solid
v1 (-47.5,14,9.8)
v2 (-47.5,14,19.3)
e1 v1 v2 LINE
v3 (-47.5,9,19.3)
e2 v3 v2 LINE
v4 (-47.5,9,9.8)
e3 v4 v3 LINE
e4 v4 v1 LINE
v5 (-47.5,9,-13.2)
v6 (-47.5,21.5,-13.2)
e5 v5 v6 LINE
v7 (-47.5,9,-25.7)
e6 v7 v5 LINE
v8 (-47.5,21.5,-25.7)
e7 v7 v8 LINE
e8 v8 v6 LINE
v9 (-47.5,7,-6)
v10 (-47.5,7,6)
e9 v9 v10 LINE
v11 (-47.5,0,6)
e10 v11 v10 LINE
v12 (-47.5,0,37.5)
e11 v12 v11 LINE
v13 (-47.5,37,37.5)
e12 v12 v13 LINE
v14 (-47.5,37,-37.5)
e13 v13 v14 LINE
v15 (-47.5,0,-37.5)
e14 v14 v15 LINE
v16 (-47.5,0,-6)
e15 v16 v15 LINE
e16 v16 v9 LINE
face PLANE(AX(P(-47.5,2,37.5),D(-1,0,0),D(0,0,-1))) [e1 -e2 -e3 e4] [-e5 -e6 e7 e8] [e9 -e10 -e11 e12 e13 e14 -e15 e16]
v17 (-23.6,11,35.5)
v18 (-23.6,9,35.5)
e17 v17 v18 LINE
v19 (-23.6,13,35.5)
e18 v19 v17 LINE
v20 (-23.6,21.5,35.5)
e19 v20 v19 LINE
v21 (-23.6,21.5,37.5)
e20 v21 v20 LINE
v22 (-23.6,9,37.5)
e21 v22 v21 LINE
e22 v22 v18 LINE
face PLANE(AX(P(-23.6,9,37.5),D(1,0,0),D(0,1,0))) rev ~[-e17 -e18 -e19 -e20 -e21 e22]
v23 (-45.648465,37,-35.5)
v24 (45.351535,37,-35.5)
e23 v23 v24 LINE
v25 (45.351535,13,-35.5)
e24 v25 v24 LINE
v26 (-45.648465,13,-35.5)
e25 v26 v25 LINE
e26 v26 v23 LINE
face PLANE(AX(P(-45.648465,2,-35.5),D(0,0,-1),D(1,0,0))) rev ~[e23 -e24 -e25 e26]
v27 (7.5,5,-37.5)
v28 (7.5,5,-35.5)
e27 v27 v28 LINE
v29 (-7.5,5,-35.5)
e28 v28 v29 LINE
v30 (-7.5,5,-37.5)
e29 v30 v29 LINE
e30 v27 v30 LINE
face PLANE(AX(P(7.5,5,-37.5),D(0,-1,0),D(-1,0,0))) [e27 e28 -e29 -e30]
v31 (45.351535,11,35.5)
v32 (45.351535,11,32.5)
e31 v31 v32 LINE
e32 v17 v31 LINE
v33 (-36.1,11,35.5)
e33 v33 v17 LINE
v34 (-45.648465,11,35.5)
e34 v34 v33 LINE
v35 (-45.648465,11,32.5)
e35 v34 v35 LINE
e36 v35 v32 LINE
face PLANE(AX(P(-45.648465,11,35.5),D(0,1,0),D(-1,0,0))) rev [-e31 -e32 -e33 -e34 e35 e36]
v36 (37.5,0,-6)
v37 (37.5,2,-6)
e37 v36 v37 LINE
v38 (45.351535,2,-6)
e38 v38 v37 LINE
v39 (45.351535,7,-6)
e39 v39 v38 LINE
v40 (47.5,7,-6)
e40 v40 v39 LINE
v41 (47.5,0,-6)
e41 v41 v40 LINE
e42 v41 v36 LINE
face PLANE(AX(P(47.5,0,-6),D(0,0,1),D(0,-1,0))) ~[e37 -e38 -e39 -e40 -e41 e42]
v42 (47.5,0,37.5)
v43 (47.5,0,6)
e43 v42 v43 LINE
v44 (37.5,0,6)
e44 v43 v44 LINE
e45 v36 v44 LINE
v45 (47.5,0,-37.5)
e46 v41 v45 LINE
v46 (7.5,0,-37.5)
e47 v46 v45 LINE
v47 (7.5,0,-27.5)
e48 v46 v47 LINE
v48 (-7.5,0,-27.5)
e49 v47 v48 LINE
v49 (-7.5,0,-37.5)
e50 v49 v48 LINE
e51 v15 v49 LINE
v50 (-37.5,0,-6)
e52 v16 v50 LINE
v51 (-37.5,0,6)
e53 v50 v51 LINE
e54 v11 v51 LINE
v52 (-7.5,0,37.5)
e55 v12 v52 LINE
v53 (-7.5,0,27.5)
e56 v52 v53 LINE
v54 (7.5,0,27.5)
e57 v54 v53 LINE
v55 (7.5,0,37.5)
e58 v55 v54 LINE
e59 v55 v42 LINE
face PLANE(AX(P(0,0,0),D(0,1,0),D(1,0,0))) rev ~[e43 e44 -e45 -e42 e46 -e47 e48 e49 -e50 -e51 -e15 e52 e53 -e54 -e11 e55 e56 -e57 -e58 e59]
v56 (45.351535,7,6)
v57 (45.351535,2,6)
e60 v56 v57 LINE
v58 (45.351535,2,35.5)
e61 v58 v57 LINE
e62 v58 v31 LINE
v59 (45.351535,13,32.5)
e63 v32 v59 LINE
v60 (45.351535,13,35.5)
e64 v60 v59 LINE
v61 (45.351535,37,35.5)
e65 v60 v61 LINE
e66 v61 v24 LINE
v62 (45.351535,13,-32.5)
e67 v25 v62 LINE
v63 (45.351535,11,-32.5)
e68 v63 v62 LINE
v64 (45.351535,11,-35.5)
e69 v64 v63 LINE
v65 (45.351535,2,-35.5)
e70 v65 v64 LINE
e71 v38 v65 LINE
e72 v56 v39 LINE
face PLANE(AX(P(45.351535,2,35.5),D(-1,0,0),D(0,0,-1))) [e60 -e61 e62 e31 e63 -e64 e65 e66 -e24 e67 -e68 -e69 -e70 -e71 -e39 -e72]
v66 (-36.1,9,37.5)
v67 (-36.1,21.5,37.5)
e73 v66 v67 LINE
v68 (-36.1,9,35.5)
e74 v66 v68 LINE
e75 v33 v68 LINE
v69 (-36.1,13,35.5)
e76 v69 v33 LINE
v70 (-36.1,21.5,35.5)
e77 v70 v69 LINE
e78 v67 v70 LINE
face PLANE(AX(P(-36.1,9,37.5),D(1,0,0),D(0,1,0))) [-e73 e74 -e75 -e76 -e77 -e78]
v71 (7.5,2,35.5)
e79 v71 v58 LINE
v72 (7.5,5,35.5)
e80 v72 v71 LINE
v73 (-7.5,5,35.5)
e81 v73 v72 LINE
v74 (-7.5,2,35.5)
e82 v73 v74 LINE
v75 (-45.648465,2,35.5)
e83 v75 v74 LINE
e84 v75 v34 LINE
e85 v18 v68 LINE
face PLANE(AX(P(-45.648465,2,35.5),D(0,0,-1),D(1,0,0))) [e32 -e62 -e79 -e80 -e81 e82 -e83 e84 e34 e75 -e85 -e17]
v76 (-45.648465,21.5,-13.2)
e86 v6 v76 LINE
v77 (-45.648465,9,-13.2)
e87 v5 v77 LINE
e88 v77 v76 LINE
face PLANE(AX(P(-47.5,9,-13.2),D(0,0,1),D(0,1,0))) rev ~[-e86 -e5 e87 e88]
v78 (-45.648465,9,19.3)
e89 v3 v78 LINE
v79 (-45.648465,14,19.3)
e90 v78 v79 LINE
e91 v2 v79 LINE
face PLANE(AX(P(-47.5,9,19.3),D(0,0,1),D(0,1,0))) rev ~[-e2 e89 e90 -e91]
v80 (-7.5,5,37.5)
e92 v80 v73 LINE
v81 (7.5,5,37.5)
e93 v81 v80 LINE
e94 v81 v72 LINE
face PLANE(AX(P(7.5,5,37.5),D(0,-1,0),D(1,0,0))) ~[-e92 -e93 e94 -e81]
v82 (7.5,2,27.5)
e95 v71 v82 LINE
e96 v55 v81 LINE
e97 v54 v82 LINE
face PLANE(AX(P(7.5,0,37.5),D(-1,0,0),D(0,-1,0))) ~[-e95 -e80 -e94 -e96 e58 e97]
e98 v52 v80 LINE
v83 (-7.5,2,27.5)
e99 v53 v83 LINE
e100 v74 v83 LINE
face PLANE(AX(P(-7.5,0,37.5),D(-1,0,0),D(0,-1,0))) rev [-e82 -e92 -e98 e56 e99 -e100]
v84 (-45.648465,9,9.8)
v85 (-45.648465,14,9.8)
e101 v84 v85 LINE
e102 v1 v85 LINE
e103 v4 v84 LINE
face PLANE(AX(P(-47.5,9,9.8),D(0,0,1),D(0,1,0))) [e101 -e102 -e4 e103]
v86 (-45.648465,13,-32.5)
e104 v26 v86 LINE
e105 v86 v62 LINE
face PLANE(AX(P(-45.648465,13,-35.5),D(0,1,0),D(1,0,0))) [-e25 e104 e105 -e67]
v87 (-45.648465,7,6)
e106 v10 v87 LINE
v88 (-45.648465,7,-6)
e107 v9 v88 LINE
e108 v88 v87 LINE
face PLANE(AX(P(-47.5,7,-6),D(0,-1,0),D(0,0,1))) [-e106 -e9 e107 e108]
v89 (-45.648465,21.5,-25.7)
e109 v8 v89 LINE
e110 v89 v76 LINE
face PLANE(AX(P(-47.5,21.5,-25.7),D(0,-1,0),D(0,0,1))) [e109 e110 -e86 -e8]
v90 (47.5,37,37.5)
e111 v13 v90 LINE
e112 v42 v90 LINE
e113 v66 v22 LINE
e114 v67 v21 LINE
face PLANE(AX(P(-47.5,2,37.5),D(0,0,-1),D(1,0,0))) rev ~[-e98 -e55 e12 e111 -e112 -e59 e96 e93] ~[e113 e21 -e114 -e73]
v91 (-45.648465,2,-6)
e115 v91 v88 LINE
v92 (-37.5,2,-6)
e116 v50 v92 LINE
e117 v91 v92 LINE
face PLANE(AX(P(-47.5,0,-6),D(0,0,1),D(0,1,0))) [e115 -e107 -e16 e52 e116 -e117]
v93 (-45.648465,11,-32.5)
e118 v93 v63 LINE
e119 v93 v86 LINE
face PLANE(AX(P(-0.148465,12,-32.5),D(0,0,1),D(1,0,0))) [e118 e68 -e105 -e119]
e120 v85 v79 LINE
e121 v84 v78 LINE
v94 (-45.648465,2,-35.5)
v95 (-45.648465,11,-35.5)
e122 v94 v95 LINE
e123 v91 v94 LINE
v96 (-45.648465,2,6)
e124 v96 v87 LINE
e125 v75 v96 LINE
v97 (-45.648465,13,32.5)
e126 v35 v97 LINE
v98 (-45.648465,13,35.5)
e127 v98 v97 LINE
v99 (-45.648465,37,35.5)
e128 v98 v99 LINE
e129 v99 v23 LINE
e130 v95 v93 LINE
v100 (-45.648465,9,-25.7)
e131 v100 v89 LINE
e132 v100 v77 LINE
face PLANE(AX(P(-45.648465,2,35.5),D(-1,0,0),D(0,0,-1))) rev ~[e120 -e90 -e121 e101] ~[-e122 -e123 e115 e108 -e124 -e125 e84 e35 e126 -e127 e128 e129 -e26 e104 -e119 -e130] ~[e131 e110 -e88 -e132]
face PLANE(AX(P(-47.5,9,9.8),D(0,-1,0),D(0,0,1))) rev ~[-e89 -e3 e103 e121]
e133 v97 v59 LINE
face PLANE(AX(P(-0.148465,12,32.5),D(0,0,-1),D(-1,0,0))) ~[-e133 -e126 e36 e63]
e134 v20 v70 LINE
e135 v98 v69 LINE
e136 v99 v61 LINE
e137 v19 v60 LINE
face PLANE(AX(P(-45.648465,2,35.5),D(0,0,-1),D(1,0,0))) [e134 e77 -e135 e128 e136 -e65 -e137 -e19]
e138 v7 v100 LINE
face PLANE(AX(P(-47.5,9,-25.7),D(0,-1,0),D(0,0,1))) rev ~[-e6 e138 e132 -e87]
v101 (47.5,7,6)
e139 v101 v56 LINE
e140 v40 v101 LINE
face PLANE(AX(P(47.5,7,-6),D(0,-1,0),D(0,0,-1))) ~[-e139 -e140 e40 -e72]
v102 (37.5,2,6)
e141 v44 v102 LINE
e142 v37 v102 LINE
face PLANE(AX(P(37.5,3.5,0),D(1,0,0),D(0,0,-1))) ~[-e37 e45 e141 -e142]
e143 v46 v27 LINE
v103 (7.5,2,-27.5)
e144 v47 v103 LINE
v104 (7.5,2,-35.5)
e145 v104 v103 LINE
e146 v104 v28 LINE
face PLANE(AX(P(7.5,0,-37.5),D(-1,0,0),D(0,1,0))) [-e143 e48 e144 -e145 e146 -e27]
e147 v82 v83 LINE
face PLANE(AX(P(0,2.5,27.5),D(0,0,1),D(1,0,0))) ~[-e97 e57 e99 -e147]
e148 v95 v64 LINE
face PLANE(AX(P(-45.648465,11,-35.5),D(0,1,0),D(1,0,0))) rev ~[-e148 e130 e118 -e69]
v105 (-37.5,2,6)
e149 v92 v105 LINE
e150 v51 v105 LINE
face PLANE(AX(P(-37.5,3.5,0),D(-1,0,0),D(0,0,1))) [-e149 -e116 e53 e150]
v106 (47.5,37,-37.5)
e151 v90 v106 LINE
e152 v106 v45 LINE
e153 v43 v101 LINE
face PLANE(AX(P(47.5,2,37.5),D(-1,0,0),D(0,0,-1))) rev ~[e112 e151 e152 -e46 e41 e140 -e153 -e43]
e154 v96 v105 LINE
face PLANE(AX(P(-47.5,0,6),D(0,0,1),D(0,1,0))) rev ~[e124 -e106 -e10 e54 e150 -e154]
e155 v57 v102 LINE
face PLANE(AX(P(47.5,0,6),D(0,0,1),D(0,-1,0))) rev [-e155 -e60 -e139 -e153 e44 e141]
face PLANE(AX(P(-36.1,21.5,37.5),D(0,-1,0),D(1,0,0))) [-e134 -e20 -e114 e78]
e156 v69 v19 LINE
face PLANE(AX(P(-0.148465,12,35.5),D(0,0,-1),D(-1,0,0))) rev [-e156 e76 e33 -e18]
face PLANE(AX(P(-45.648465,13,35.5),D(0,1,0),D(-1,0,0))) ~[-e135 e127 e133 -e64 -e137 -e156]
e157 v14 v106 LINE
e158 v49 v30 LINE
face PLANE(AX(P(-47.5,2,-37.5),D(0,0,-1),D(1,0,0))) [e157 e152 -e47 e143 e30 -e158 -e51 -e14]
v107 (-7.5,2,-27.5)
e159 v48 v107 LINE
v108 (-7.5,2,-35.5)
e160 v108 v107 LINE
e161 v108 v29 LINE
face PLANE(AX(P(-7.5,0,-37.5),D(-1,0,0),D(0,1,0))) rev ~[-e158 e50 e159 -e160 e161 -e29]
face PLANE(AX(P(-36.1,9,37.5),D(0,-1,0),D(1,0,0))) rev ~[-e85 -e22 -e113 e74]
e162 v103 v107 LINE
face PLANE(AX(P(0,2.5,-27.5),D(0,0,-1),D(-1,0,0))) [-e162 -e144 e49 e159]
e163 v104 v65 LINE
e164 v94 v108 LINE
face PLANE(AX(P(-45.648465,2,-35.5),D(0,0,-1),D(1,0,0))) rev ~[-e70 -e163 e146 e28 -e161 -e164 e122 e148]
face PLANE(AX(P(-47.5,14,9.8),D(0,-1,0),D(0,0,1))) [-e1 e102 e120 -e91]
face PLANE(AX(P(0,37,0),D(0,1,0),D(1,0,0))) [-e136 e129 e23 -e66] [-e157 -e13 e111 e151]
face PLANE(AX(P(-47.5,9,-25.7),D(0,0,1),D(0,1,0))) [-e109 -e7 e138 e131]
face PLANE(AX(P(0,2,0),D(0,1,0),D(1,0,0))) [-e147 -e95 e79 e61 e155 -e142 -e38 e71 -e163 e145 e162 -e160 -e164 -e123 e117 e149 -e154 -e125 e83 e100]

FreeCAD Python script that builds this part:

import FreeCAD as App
import Part
import Sketcher

V = App.Vector


def add_polygon(sketch, points):
    """Adds a closed chain of lines whose ends are joined by coincident constraints."""
    first, n = sketch.GeometryCount, len(points)
    for a, b in zip(points, points[1:] + points[:1]):
        sketch.addGeometry(Part.LineSegment(App.Vector(*a, 0), App.Vector(*b, 0)), False)
    for i in range(n):
        sketch.addConstraint(Sketcher.Constraint("Coincident", first + i, 2, first + (i + 1) % n, 1))

doc = App.newDocument("Part")
body = doc.addObject("PartDesign::Body", "Body")

sketch1 = body.newObject("Sketcher::SketchObject", "Sketch")
sketch1.AttachmentSupport = (doc.getObject("XZ_Plane"), [""])
sketch1.MapMode = "FlatFace"
add_polygon(sketch1, [(-48, -38), (-48, 38), (48, 38), (48, -38)])
sketch1.addConstraint([
    Sketcher.Constraint("Vertical", 0),
    Sketcher.Constraint("Horizontal", 1),
    Sketcher.Constraint("Vertical", 2),
    Sketcher.Constraint("Horizontal", 3),
    Sketcher.Constraint("Symmetric", 0, 2, 2, 2, -1, 1),
    Sketcher.Constraint("DistanceX", 1, 1, 1, 2, 95.0),
    Sketcher.Constraint("DistanceY", 0, 1, 0, 2, 75.0),
])
pad1 = body.newObject("PartDesign::Pad", "Pad")
pad1.Profile = sketch1
pad1.Length = 2
pad1.Reversed = True

sketch2 = body.newObject("Sketcher::SketchObject", "Sketch001")
sketch2.AttachmentSupport = (doc.getObject("XZ_Plane"), [""])
sketch2.MapMode = "FlatFace"
sketch2.AttachmentOffset = App.Placement(V(0, 0, -2), App.Rotation())
add_polygon(sketch2, [(-48, -38), (-48, 38), (48, 38), (48, -38)])
add_polygon(sketch2, [(45, 36), (-46, 36), (-46, -36), (45, -36)])
sketch2.addConstraint([
    Sketcher.Constraint("Vertical", 0),
    Sketcher.Constraint("Horizontal", 1),
    Sketcher.Constraint("Vertical", 2),
    Sketcher.Constraint("Horizontal", 3),
    Sketcher.Constraint("Horizontal", 4),
    Sketcher.Constraint("Vertical", 5),
    Sketcher.Constraint("Horizontal", 6),
    Sketcher.Constraint("Vertical", 7),
    Sketcher.Constraint("Symmetric", 0, 2, 2, 2, -1, 1),
    Sketcher.Constraint("DistanceX", 1, 1, 1, 2, 95.0),
    Sketcher.Constraint("DistanceX", 4, 2, 4, 1, 91.0),
    Sketcher.Constraint("DistanceY", 0, 1, 0, 2, 75.0),
    Sketcher.Constraint("DistanceY", 5, 2, 5, 1, 71.0),
    Sketcher.Constraint("DistanceY", 4, 2, 0, 2, 2.0),
    Sketcher.Constraint("DistanceX", 4, 2, -1, 1, 45.648465),
])
pad2 = body.newObject("PartDesign::Pad", "Pad001")
pad2.Profile = sketch2
pad2.Length = 35
pad2.Reversed = True

sketch3 = body.newObject("Sketcher::SketchObject", "Sketch002")
sketch3.AttachmentSupport = (doc.getObject("XY_Plane"), [""])
sketch3.MapMode = "FlatFace"
sketch3.AttachmentOffset = App.Placement(V(0, 0, 37.5), App.Rotation())
add_polygon(sketch3, [(-36, 22), (-36, 9), (-24, 9), (-24, 22)])
sketch3.addConstraint([
    Sketcher.Constraint("Vertical", 0),
    Sketcher.Constraint("Horizontal", 1),
    Sketcher.Constraint("Vertical", 2),
    Sketcher.Constraint("Horizontal", 3),
    Sketcher.Constraint("Equal", 3, 0),
    Sketcher.Constraint("DistanceX", 1, 1, 1, 2, 12.5),
    Sketcher.Constraint("DistanceY", -1, 1, 0, 2, 9.0),
    Sketcher.Constraint("DistanceX", 0, 2, -1, 1, 36.1),
])
pocket1 = body.newObject("PartDesign::Pocket", "Pocket")
pocket1.Profile = sketch3
pocket1.Length = 10

sketch4 = body.newObject("Sketcher::SketchObject", "Sketch003")
sketch4.AttachmentSupport = (doc.getObject("YZ_Plane"), [""])
sketch4.MapMode = "FlatFace"
sketch4.AttachmentOffset = App.Placement(V(0, 0, -47.5), App.Rotation())
add_polygon(sketch4, [(22, -26), (9, -26), (9, -13), (22, -13)])
sketch4.addConstraint([
    Sketcher.Constraint("Horizontal", 0),
    Sketcher.Constraint("Vertical", 1),
    Sketcher.Constraint("Horizontal", 2),
    Sketcher.Constraint("Vertical", 3),
    Sketcher.Constraint("Equal", 2, 1),
    Sketcher.Constraint("DistanceX", 0, 2, 0, 1, 12.5),
    Sketcher.Constraint("DistanceX", -1, 1, 0, 2, 9.0),
    Sketcher.Constraint("DistanceY", 0, 2, -1, 1, 25.7),
])
pocket2 = body.newObject("PartDesign::Pocket", "Pocket001")
pocket2.Profile = sketch4
pocket2.Length = 10
pocket2.Reversed = True

sketch5 = body.newObject("Sketcher::SketchObject", "Sketch004")
sketch5.AttachmentSupport = (doc.getObject("YZ_Plane"), [""])
sketch5.MapMode = "FlatFace"
sketch5.AttachmentOffset = App.Placement(V(0, 0, -47.5), App.Rotation())
add_polygon(sketch5, [(14, 10), (9, 10), (9, 19), (14, 19)])
sketch5.addConstraint([
    Sketcher.Constraint("Horizontal", 0),
    Sketcher.Constraint("Vertical", 1),
    Sketcher.Constraint("Horizontal", 2),
    Sketcher.Constraint("Vertical", 3),
    Sketcher.Constraint("DistanceX", 0, 2, 0, 1, 5.0),
    Sketcher.Constraint("DistanceY", 1, 1, 1, 2, 9.5),
    Sketcher.Constraint("DistanceX", -1, 1, 0, 2, 9.0),
    Sketcher.Constraint("DistanceY", -1, 1, 0, 2, 9.8),
])
pocket3 = body.newObject("PartDesign::Pocket", "Pocket002")
pocket3.Profile = sketch5
pocket3.Length = 10
pocket3.Reversed = True

sketch6 = body.newObject("Sketcher::SketchObject", "Sketch005")
sketch6.AttachmentSupport = (doc.getObject("XY_Plane"), [""])
sketch6.MapMode = "FlatFace"
sketch6.AttachmentOffset = App.Placement(V(0, 0, -37.5), App.Rotation())
add_polygon(sketch6, [(8, 5), (8, 0), (-8, 0), (-8, 5)])
sketch6.addConstraint([
    Sketcher.Constraint("Vertical", 0),
    Sketcher.Constraint("Horizontal", 1),
    Sketcher.Constraint("Vertical", 2),
    Sketcher.Constraint("Horizontal", 3),
    Sketcher.Constraint("Symmetric", 0, 2, 1, 2, -1, 1),
    Sketcher.Constraint("DistanceX", 1, 2, 1, 1, 15.0),
    Sketcher.Constraint("DistanceY", 0, 2, 0, 1, 5.0),
])
pocket4 = body.newObject("PartDesign::Pocket", "Pocket003")
pocket4.Profile = sketch6
pocket4.Length = 10
pocket4.Reversed = True
doc.recompute()

mirrored = body.newObject("PartDesign::Mirrored", "Mirrored")
mirrored.Originals = [pocket4]
mirrored.MirrorPlane = (doc.getObject("XY_Plane"), [""])
body.Tip = mirrored

sketch7 = body.newObject("Sketcher::SketchObject", "Sketch006")
sketch7.AttachmentSupport = (doc.getObject("YZ_Plane"), [""])
sketch7.MapMode = "FlatFace"
sketch7.AttachmentOffset = App.Placement(V(0, 0, -47.5), App.Rotation())
add_polygon(sketch7, [(7, -6), (0, -6), (0, 6), (7, 6)])
sketch7.addConstraint([
    Sketcher.Constraint("Horizontal", 0),
    Sketcher.Constraint("Vertical", 1),
    Sketcher.Constraint("Horizontal", 2),
    Sketcher.Constraint("Vertical", 3),
    Sketcher.Constraint("Symmetric", 0, 2, 1, 2, -1, 1),
    Sketcher.Constraint("DistanceX", 0, 2, 0, 1, 7.0),
    Sketcher.Constraint("DistanceY", 1, 1, 1, 2, 12.0),
])
pocket5 = body.newObject("PartDesign::Pocket", "Pocket004")
pocket5.Profile = sketch7
pocket5.Length = 10
pocket5.Reversed = True
doc.recompute()

mirrored2 = body.newObject("PartDesign::Mirrored", "Mirrored001")
mirrored2.Originals = [pocket5]
mirrored2.MirrorPlane = (doc.getObject("YZ_Plane"), [""])
body.Tip = mirrored2

sketch8 = body.newObject("Sketcher::SketchObject", "Sketch007")
sketch8.AttachmentSupport = (doc.getObject("XY_Plane"), [""])
sketch8.MapMode = "FlatFace"
sketch8.AttachmentOffset = App.Placement(V(0, 0, -35.5), App.Rotation())
add_polygon(sketch8, [(-45.6, 13), (-45.6, 11), (45.4, 11), (45.4, 13)])
sketch8.addConstraint([
    Sketcher.Constraint("Vertical", 0),
    Sketcher.Constraint("Horizontal", 1),
    Sketcher.Constraint("Vertical", 2),
    Sketcher.Constraint("Horizontal", 3),
    Sketcher.Constraint("DistanceX", 1, 1, 1, 2, 91.0),
    Sketcher.Constraint("DistanceY", 0, 2, 0, 1, 2.0),
    Sketcher.Constraint("DistanceY", -1, 1, 0, 2, 11.0),
    Sketcher.Constraint("DistanceX", 0, 2, -1, 1, 45.648465),
])
pad3 = body.newObject("PartDesign::Pad", "Pad002")
pad3.Profile = sketch8
pad3.Length = 3
doc.recompute()

mirrored3 = body.newObject("PartDesign::Mirrored", "Mirrored002")
mirrored3.Originals = [pad3]
mirrored3.MirrorPlane = (doc.getObject("XY_Plane"), [""])
body.Tip = mirrored3

doc.recompute()
